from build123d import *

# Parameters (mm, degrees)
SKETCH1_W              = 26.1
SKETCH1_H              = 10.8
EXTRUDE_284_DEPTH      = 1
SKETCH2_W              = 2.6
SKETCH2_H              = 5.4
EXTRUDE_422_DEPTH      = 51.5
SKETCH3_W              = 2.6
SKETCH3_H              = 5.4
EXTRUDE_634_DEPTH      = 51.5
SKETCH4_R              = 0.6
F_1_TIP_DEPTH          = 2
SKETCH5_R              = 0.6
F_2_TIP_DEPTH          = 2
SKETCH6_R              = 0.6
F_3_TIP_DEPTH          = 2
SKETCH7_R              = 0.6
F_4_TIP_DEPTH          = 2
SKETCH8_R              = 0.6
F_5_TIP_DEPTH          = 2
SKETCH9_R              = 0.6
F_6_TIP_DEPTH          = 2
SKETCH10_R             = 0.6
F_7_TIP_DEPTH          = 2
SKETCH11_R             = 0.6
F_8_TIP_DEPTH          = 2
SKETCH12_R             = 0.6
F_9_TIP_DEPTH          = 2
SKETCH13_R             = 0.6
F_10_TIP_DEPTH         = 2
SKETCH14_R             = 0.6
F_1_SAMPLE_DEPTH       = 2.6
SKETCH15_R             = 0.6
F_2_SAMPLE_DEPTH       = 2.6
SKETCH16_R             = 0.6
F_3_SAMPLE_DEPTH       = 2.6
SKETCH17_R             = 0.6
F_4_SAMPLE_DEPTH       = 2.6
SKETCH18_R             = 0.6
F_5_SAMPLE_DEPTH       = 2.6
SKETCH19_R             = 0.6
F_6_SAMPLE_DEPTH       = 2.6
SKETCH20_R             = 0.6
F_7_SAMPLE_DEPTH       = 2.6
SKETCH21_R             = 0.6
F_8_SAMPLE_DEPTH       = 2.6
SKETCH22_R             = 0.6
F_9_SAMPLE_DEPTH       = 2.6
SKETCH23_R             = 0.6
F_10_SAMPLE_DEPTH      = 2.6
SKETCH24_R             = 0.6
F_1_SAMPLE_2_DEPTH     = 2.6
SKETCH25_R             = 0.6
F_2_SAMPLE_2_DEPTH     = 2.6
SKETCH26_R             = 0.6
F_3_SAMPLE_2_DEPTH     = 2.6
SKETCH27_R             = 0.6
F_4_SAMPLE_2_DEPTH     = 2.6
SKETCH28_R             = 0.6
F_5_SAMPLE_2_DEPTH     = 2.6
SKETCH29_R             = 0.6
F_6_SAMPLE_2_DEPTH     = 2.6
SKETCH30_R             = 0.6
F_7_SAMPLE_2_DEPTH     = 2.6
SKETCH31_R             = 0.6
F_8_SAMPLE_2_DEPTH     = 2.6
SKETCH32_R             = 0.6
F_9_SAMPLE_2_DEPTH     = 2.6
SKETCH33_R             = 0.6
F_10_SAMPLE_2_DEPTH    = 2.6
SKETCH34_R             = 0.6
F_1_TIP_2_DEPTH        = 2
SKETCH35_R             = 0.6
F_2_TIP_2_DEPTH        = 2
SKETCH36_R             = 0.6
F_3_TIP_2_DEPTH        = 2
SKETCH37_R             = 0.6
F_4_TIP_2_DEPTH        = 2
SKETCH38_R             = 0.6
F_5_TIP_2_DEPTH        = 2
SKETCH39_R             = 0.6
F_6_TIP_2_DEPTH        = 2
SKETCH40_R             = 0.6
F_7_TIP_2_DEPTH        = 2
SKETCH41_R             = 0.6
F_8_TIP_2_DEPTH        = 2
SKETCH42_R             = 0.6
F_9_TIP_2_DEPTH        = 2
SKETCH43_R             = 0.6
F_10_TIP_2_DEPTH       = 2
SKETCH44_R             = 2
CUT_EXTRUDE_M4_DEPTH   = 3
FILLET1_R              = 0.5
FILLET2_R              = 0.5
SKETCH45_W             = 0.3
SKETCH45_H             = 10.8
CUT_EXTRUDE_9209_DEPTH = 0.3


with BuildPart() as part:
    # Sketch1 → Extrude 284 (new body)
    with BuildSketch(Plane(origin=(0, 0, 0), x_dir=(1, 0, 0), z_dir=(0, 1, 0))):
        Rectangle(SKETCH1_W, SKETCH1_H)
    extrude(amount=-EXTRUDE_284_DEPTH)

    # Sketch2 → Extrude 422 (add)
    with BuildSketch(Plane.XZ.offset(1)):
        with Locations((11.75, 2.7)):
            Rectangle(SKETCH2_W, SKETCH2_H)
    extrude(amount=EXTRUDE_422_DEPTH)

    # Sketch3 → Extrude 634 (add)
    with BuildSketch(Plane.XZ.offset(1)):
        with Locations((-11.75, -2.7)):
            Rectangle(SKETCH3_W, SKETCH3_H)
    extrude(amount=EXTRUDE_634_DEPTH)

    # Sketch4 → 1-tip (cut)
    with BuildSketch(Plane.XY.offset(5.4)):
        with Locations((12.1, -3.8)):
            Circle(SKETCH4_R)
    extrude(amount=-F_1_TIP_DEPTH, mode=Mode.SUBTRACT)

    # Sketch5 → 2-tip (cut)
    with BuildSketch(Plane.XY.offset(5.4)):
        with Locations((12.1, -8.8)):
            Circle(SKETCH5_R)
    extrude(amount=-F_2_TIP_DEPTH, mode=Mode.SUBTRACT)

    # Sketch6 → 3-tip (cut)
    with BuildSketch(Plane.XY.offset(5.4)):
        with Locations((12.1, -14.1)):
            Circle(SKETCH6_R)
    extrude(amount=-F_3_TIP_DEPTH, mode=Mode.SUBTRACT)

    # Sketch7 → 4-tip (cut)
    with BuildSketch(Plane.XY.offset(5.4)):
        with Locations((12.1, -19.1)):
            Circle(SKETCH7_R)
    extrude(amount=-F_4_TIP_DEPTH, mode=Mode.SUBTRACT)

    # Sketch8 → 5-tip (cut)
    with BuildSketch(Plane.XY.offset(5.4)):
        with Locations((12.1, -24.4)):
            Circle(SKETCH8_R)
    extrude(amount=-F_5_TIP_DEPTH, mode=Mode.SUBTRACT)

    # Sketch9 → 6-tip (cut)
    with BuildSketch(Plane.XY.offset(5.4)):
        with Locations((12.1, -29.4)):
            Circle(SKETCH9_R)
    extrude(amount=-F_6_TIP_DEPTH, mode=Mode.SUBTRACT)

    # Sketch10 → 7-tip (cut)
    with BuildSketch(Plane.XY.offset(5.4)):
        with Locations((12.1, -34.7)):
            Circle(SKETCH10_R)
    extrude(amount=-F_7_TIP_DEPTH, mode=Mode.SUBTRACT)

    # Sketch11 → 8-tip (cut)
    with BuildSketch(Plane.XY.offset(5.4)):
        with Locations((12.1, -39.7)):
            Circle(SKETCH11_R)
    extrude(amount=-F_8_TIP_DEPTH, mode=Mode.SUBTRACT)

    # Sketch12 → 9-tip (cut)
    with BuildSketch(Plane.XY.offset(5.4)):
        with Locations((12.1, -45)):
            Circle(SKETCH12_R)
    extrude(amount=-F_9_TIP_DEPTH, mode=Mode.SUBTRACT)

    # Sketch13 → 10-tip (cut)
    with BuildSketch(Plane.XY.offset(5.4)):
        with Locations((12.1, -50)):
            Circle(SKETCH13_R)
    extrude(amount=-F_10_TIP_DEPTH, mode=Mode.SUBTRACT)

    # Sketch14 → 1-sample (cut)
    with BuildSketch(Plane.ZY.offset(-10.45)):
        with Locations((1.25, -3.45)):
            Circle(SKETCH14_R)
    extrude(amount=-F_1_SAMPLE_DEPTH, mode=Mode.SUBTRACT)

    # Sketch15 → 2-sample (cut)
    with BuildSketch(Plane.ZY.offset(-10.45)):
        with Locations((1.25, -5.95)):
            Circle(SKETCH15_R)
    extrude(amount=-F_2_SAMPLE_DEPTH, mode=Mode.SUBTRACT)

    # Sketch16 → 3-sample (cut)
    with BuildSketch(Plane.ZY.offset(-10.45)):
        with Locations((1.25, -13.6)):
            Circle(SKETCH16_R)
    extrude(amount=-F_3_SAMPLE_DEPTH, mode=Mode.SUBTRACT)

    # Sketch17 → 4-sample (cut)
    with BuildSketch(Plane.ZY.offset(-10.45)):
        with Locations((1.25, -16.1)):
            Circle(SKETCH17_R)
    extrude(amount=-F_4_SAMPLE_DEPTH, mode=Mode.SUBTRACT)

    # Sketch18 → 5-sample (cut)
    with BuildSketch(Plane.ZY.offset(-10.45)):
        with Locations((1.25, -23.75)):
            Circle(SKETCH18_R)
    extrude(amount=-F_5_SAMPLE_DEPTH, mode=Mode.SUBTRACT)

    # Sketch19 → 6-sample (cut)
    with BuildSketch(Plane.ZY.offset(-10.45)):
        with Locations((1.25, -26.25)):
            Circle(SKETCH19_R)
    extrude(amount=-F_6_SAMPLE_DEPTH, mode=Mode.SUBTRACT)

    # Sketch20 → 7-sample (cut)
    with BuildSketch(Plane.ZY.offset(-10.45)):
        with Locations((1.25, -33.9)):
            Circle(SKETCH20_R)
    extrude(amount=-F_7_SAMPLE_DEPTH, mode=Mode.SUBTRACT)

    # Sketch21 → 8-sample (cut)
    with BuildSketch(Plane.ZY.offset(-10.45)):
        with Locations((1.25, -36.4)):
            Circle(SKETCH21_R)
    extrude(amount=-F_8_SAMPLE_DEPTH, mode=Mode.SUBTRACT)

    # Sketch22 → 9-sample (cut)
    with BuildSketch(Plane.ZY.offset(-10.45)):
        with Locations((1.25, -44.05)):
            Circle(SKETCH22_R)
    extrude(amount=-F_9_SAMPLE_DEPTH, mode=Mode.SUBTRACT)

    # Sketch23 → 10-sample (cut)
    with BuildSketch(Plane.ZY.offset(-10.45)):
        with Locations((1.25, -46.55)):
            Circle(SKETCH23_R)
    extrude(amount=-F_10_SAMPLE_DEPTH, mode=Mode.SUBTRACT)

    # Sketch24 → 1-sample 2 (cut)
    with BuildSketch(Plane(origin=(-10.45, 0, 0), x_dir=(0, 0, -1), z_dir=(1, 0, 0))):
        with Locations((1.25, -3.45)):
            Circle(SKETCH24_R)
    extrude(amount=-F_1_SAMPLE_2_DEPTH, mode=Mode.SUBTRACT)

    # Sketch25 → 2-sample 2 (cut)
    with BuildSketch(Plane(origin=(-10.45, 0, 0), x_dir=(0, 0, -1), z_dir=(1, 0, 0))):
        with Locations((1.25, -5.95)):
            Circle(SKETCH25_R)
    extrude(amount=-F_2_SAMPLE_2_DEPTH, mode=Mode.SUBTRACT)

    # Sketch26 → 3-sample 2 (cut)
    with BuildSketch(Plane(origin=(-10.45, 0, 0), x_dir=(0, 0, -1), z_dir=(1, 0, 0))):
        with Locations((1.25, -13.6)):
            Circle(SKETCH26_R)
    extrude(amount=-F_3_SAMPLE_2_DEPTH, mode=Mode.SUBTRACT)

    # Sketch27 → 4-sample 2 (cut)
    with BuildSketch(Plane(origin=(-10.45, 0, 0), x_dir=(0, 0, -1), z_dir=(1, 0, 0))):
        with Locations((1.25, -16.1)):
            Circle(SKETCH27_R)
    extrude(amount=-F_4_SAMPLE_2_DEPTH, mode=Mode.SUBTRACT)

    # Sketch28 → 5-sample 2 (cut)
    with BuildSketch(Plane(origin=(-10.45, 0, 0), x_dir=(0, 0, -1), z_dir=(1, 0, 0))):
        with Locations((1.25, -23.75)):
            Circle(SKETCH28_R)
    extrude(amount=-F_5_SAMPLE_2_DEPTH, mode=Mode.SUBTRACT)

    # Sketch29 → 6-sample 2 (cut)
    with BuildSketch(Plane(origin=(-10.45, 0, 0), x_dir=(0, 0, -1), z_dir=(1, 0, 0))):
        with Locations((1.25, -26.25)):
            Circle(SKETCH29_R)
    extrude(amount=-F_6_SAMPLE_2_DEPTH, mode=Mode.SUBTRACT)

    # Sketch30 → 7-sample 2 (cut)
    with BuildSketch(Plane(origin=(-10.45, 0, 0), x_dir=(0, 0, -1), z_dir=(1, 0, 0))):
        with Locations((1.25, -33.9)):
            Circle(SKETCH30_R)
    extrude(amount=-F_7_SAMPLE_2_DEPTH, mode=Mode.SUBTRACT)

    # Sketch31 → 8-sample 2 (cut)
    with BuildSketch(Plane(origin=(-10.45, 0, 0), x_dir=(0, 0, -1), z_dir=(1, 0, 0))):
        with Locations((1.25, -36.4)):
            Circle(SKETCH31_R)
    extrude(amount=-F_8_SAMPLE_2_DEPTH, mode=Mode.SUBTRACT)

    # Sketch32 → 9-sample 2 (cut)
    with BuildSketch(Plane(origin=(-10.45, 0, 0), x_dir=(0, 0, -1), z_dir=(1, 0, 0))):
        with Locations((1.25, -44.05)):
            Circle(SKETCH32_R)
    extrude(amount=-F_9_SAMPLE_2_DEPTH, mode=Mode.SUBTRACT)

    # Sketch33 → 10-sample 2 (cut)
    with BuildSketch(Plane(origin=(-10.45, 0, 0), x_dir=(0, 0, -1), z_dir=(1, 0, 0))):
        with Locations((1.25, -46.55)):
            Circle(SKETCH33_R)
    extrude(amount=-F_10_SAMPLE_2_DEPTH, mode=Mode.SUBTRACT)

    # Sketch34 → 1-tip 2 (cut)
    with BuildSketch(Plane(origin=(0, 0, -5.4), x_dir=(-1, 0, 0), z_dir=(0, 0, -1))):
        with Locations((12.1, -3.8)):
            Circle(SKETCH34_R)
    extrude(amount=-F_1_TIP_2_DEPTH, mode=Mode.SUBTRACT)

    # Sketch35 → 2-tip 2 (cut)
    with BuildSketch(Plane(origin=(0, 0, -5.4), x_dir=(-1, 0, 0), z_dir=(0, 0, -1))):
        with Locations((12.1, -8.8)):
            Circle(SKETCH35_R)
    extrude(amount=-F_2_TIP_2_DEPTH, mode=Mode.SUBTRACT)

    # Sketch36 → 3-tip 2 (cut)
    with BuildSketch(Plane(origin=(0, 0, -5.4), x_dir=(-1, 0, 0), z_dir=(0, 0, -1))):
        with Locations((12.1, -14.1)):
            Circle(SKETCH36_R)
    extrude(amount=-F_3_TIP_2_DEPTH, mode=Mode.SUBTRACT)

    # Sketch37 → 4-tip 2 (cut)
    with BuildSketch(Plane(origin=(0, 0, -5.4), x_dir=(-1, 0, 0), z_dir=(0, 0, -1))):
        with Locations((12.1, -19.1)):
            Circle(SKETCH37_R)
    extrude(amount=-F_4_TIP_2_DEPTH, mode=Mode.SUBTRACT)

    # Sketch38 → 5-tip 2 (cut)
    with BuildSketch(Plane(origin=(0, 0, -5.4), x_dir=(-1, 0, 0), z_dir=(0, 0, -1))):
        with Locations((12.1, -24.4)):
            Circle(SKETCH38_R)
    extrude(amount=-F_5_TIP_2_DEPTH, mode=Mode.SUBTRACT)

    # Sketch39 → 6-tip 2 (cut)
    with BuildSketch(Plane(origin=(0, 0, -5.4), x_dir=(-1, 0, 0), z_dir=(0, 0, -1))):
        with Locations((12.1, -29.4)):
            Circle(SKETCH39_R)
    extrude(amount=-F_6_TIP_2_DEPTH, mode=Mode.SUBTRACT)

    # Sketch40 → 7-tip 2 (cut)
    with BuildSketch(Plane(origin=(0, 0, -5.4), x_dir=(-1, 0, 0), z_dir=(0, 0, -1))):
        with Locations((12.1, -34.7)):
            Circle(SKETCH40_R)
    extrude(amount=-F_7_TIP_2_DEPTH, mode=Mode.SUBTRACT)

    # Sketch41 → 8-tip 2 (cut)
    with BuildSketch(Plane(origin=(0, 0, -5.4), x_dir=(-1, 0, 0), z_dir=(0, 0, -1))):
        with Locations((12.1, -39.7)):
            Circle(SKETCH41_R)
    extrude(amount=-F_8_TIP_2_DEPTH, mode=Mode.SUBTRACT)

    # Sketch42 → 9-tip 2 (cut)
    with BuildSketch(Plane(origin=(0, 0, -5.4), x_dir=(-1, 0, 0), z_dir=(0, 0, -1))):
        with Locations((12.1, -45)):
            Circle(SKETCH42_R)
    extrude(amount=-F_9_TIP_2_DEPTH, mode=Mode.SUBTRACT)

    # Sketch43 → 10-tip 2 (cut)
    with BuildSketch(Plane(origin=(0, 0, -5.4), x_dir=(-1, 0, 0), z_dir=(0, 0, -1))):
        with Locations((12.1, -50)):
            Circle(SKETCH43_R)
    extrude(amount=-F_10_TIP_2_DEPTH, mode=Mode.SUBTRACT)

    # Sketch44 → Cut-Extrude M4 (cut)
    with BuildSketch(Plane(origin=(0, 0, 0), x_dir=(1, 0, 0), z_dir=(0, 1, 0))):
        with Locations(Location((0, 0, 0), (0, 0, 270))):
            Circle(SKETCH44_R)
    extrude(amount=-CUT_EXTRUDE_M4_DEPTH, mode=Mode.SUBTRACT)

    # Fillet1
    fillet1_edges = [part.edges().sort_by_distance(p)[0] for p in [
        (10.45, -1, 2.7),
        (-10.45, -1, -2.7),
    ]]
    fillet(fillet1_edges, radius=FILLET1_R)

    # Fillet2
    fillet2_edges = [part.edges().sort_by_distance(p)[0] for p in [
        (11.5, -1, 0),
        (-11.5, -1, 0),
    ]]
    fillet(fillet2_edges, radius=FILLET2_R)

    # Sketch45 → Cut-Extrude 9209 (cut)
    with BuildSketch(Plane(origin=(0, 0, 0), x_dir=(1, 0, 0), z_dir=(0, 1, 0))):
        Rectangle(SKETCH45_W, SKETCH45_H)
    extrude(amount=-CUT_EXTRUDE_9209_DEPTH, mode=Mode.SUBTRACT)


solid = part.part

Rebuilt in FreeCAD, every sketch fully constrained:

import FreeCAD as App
import Part
import Sketcher
from FreeCAD import Vector
Q = App.Units.Quantity


def edges_at(feature, points):
    """Names of the edges that pass closest to the given points."""
    edges = feature.Shape.Edges
    near = lambda p: min(range(len(edges)), key=lambda i: edges[i].distToShape(Part.Vertex(*p))[0])
    return sorted({f"Edge{near(p) + 1}" for p in points})

doc = App.newDocument("Part")
body = doc.addObject("PartDesign::Body", "Body")

# Sketch on XZ plane
sketch1 = body.newObject("Sketcher::SketchObject", "Sketch")
sketch1.AttachmentSupport = (doc.getObject("XZ_Plane"), [""])
sketch1.MapMode = "FlatFace"
sketch1.addGeometry(Part.LineSegment(Vector(-13.05, -5.4, 0), Vector(-13.05, 5.4, 0)), False)
sketch1.addGeometry(Part.LineSegment(Vector(-13.05, 5.4, 0), Vector(13.05, 5.4, 0)), False)
sketch1.addGeometry(Part.LineSegment(Vector(13.05, 5.4, 0), Vector(13.05, -5.4, 0)), False)
sketch1.addGeometry(Part.LineSegment(Vector(13.05, -5.4, 0), Vector(-13.05, -5.4, 0)), False)
sketch1.addConstraint(Sketcher.Constraint("Coincident", 0, 2, 1, 1))
sketch1.addConstraint(Sketcher.Constraint("Coincident", 1, 2, 2, 1))
sketch1.addConstraint(Sketcher.Constraint("Coincident", 2, 2, 3, 1))
sketch1.addConstraint(Sketcher.Constraint("Coincident", 3, 2, 0, 1))
sketch1.addConstraint(Sketcher.Constraint("Vertical", 0))
sketch1.addConstraint(Sketcher.Constraint("Horizontal", 1))
sketch1.addConstraint(Sketcher.Constraint("Vertical", 2))
sketch1.addConstraint(Sketcher.Constraint("Horizontal", 3))
sketch1.addConstraint(Sketcher.Constraint("Symmetric", 0, 2, 2, 2, -1, 1))
sketch1.addConstraint(Sketcher.Constraint("DistanceX", 1, 1, 1, 2, Q("26.1 mm")))
sketch1.addConstraint(Sketcher.Constraint("DistanceY", 0, 1, 0, 2, Q("10.8 mm")))
pad1 = body.newObject("PartDesign::Pad", "Pad")
pad1.Profile = sketch1
pad1.Length = 1

# Sketch on XZ plane
sketch2 = body.newObject("Sketcher::SketchObject", "Sketch001")
sketch2.AttachmentSupport = (doc.getObject("XZ_Plane"), [""])
sketch2.MapMode = "FlatFace"
sketch2.AttachmentOffset = App.Placement(Vector(0, 0, 1), App.Rotation())
sketch2.addGeometry(Part.LineSegment(Vector(10.45, 5.4, 0), Vector(10.45, 0, 0)), False)
sketch2.addGeometry(Part.LineSegment(Vector(10.45, 0, 0), Vector(13.05, 0, 0)), False)
sketch2.addGeometry(Part.LineSegment(Vector(13.05, 0, 0), Vector(13.05, 5.4, 0)), False)
sketch2.addGeometry(Part.LineSegment(Vector(13.05, 5.4, 0), Vector(10.45, 5.4, 0)), False)
sketch2.addConstraint(Sketcher.Constraint("Coincident", 0, 2, 1, 1))
sketch2.addConstraint(Sketcher.Constraint("Coincident", 1, 2, 2, 1))
sketch2.addConstraint(Sketcher.Constraint("Coincident", 2, 2, 3, 1))
sketch2.addConstraint(Sketcher.Constraint("Coincident", 3, 2, 0, 1))
sketch2.addConstraint(Sketcher.Constraint("Vertical", 0))
sketch2.addConstraint(Sketcher.Constraint("Horizontal", 1))
sketch2.addConstraint(Sketcher.Constraint("Vertical", 2))
sketch2.addConstraint(Sketcher.Constraint("Horizontal", 3))
sketch2.addConstraint(Sketcher.Constraint("PointOnObject", 0, 2, -1))
sketch2.addConstraint(Sketcher.Constraint("DistanceX", 1, 1, 1, 2, Q("2.6 mm")))
sketch2.addConstraint(Sketcher.Constraint("DistanceY", 0, 2, 0, 1, Q("5.4 mm")))
sketch2.addConstraint(Sketcher.Constraint("DistanceX", -1, 1, 0, 2, Q("10.45 mm")))
pad2 = body.newObject("PartDesign::Pad", "Pad001")
pad2.Profile = sketch2
pad2.Length = 51.5

# Sketch on XZ plane
sketch3 = body.newObject("Sketcher::SketchObject", "Sketch002")
sketch3.AttachmentSupport = (doc.getObject("XZ_Plane"), [""])
sketch3.MapMode = "FlatFace"
sketch3.AttachmentOffset = App.Placement(Vector(0, 0, 1), App.Rotation())
sketch3.addGeometry(Part.LineSegment(Vector(-13.05, 0, 0), Vector(-13.05, -5.4, 0)), False)
sketch3.addGeometry(Part.LineSegment(Vector(-13.05, -5.4, 0), Vector(-10.45, -5.4, 0)), False)
sketch3.addGeometry(Part.LineSegment(Vector(-10.45, -5.4, 0), Vector(-10.45, 0, 0)), False)
sketch3.addGeometry(Part.LineSegment(Vector(-10.45, 0, 0), Vector(-13.05, 0, 0)), False)
sketch3.addConstraint(Sketcher.Constraint("Coincident", 0, 2, 1, 1))
sketch3.addConstraint(Sketcher.Constraint("Coincident", 1, 2, 2, 1))
sketch3.addConstraint(Sketcher.Constraint("Coincident", 2, 2, 3, 1))
sketch3.addConstraint(Sketcher.Constraint("Coincident", 3, 2, 0, 1))
sketch3.addConstraint(Sketcher.Constraint("Vertical", 0))
sketch3.addConstraint(Sketcher.Constraint("Horizontal", 1))
sketch3.addConstraint(Sketcher.Constraint("Vertical", 2))
sketch3.addConstraint(Sketcher.Constraint("Horizontal", 3))
sketch3.addConstraint(Sketcher.Constraint("PointOnObject", 2, 2, -1))
sketch3.addConstraint(Sketcher.Constraint("DistanceX", 1, 1, 1, 2, Q("2.6 mm")))
sketch3.addConstraint(Sketcher.Constraint("DistanceY", 0, 2, 0, 1, Q("5.4 mm")))
sketch3.addConstraint(Sketcher.Constraint("DistanceX", 0, 2, -1, 1, Q("13.05 mm")))
pad3 = body.newObject("PartDesign::Pad", "Pad002")
pad3.Profile = sketch3
pad3.Length = 51.5

# Sketch on XY plane
sketch4 = body.newObject("Sketcher::SketchObject", "Sketch003")
sketch4.AttachmentSupport = (doc.getObject("XY_Plane"), [""])
sketch4.MapMode = "FlatFace"
sketch4.AttachmentOffset = App.Placement(Vector(0, 0, 5.4), App.Rotation())
sketch4.addGeometry(Part.Circle(Vector(12.1, -3.8, 0), Vector(0, 0, 1), 0.6), False)
sketch4.addConstraint(Sketcher.Constraint("Diameter", 0, Q("1.2 mm")))
sketch4.addConstraint(Sketcher.Constraint("DistanceX", -1, 1, 0, 3, Q("12.1 mm")))
sketch4.addConstraint(Sketcher.Constraint("DistanceY", 0, 3, -1, 1, Q("3.8 mm")))
pocket1 = body.newObject("PartDesign::Pocket", "Pocket")
pocket1.Profile = sketch4
pocket1.Length = 2

# Sketch on XY plane
sketch5 = body.newObject("Sketcher::SketchObject", "Sketch004")
sketch5.AttachmentSupport = (doc.getObject("XY_Plane"), [""])
sketch5.MapMode = "FlatFace"
sketch5.AttachmentOffset = App.Placement(Vector(0, 0, 5.4), App.Rotation())
sketch5.addGeometry(Part.Circle(Vector(12.1, -8.8, 0), Vector(0, 0, 1), 0.6), False)
sketch5.addConstraint(Sketcher.Constraint("Diameter", 0, Q("1.2 mm")))
sketch5.addConstraint(Sketcher.Constraint("DistanceX", -1, 1, 0, 3, Q("12.1 mm")))
sketch5.addConstraint(Sketcher.Constraint("DistanceY", 0, 3, -1, 1, Q("8.8 mm")))
pocket2 = body.newObject("PartDesign::Pocket", "Pocket001")
pocket2.Profile = sketch5
pocket2.Length = 2

# Sketch on XY plane
sketch6 = body.newObject("Sketcher::SketchObject", "Sketch005")
sketch6.AttachmentSupport = (doc.getObject("XY_Plane"), [""])
sketch6.MapMode = "FlatFace"
sketch6.AttachmentOffset = App.Placement(Vector(0, 0, 5.4), App.Rotation())
sketch6.addGeometry(Part.Circle(Vector(12.1, -14.1, 0), Vector(0, 0, 1), 0.6), False)
sketch6.addConstraint(Sketcher.Constraint("Diameter", 0, Q("1.2 mm")))
sketch6.addConstraint(Sketcher.Constraint("DistanceX", -1, 1, 0, 3, Q("12.1 mm")))
sketch6.addConstraint(Sketcher.Constraint("DistanceY", 0, 3, -1, 1, Q("14.1 mm")))
pocket3 = body.newObject("PartDesign::Pocket", "Pocket002")
pocket3.Profile = sketch6
pocket3.Length = 2

# Sketch on XY plane
sketch7 = body.newObject("Sketcher::SketchObject", "Sketch006")
sketch7.AttachmentSupport = (doc.getObject("XY_Plane"), [""])
sketch7.MapMode = "FlatFace"
sketch7.AttachmentOffset = App.Placement(Vector(0, 0, 5.4), App.Rotation())
sketch7.addGeometry(Part.Circle(Vector(12.1, -19.1, 0), Vector(0, 0, 1), 0.6), False)
sketch7.addConstraint(Sketcher.Constraint("Diameter", 0, Q("1.2 mm")))
sketch7.addConstraint(Sketcher.Constraint("DistanceX", -1, 1, 0, 3, Q("12.1 mm")))
sketch7.addConstraint(Sketcher.Constraint("DistanceY", 0, 3, -1, 1, Q("19.1 mm")))
pocket4 = body.newObject("PartDesign::Pocket", "Pocket003")
pocket4.Profile = sketch7
pocket4.Length = 2

# Sketch on XY plane
sketch8 = body.newObject("Sketcher::SketchObject", "Sketch007")
sketch8.AttachmentSupport = (doc.getObject("XY_Plane"), [""])
sketch8.MapMode = "FlatFace"
sketch8.AttachmentOffset = App.Placement(Vector(0, 0, 5.4), App.Rotation())
sketch8.addGeometry(Part.Circle(Vector(12.1, -24.4, 0), Vector(0, 0, 1), 0.6), False)
sketch8.addConstraint(Sketcher.Constraint("Diameter", 0, Q("1.2 mm")))
sketch8.addConstraint(Sketcher.Constraint("DistanceX", -1, 1, 0, 3, Q("12.1 mm")))
sketch8.addConstraint(Sketcher.Constraint("DistanceY", 0, 3, -1, 1, Q("24.4 mm")))
pocket5 = body.newObject("PartDesign::Pocket", "Pocket004")
pocket5.Profile = sketch8
pocket5.Length = 2

# Sketch on XY plane
sketch9 = body.newObject("Sketcher::SketchObject", "Sketch008")
sketch9.AttachmentSupport = (doc.getObject("XY_Plane"), [""])
sketch9.MapMode = "FlatFace"
sketch9.AttachmentOffset = App.Placement(Vector(0, 0, 5.4), App.Rotation())
sketch9.addGeometry(Part.Circle(Vector(12.1, -29.4, 0), Vector(0, 0, 1), 0.6), False)
sketch9.addConstraint(Sketcher.Constraint("Diameter", 0, Q("1.2 mm")))
sketch9.addConstraint(Sketcher.Constraint("DistanceX", -1, 1, 0, 3, Q("12.1 mm")))
sketch9.addConstraint(Sketcher.Constraint("DistanceY", 0, 3, -1, 1, Q("29.4 mm")))
pocket6 = body.newObject("PartDesign::Pocket", "Pocket005")
pocket6.Profile = sketch9
pocket6.Length = 2

# Sketch on XY plane
sketch10 = body.newObject("Sketcher::SketchObject", "Sketch009")
sketch10.AttachmentSupport = (doc.getObject("XY_Plane"), [""])
sketch10.MapMode = "FlatFace"
sketch10.AttachmentOffset = App.Placement(Vector(0, 0, 5.4), App.Rotation())
sketch10.addGeometry(Part.Circle(Vector(12.1, -34.7, 0), Vector(0, 0, 1), 0.6), False)
sketch10.addConstraint(Sketcher.Constraint("Diameter", 0, Q("1.2 mm")))
sketch10.addConstraint(Sketcher.Constraint("DistanceX", -1, 1, 0, 3, Q("12.1 mm")))
sketch10.addConstraint(Sketcher.Constraint("DistanceY", 0, 3, -1, 1, Q("34.7 mm")))
pocket7 = body.newObject("PartDesign::Pocket", "Pocket006")
pocket7.Profile = sketch10
pocket7.Length = 2

# Sketch on XY plane
sketch11 = body.newObject("Sketcher::SketchObject", "Sketch010")
sketch11.AttachmentSupport = (doc.getObject("XY_Plane"), [""])
sketch11.MapMode = "FlatFace"
sketch11.AttachmentOffset = App.Placement(Vector(0, 0, 5.4), App.Rotation())
sketch11.addGeometry(Part.Circle(Vector(12.1, -39.7, 0), Vector(0, 0, 1), 0.6), False)
sketch11.addConstraint(Sketcher.Constraint("Diameter", 0, Q("1.2 mm")))
sketch11.addConstraint(Sketcher.Constraint("DistanceX", -1, 1, 0, 3, Q("12.1 mm")))
sketch11.addConstraint(Sketcher.Constraint("DistanceY", 0, 3, -1, 1, Q("39.7 mm")))
pocket8 = body.newObject("PartDesign::Pocket", "Pocket007")
pocket8.Profile = sketch11
pocket8.Length = 2

# Sketch on XY plane
sketch12 = body.newObject("Sketcher::SketchObject", "Sketch011")
sketch12.AttachmentSupport = (doc.getObject("XY_Plane"), [""])
sketch12.MapMode = "FlatFace"
sketch12.AttachmentOffset = App.Placement(Vector(0, 0, 5.4), App.Rotation())
sketch12.addGeometry(Part.Circle(Vector(12.1, -45, 0), Vector(0, 0, 1), 0.6), False)
sketch12.addConstraint(Sketcher.Constraint("Diameter", 0, Q("1.2 mm")))
sketch12.addConstraint(Sketcher.Constraint("DistanceY", 0, 3, -1, 1, Q("45 mm")))
sketch12.addConstraint(Sketcher.Constraint("DistanceX", -1, 1, 0, 3, Q("12.1 mm")))
pocket9 = body.newObject("PartDesign::Pocket", "Pocket008")
pocket9.Profile = sketch12
pocket9.Length = 2

# Sketch on XY plane
sketch13 = body.newObject("Sketcher::SketchObject", "Sketch012")
sketch13.AttachmentSupport = (doc.getObject("XY_Plane"), [""])
sketch13.MapMode = "FlatFace"
sketch13.AttachmentOffset = App.Placement(Vector(0, 0, 5.4), App.Rotation())
sketch13.addGeometry(Part.Circle(Vector(12.1, -50, 0), Vector(0, 0, 1), 0.6), False)
sketch13.addConstraint(Sketcher.Constraint("Diameter", 0, Q("1.2 mm")))
sketch13.addConstraint(Sketcher.Constraint("DistanceY", 0, 3, -1, 1, Q("50 mm")))
sketch13.addConstraint(Sketcher.Constraint("DistanceX", -1, 1, 0, 3, Q("12.1 mm")))
pocket10 = body.newObject("PartDesign::Pocket", "Pocket009")
pocket10.Profile = sketch13
pocket10.Length = 2

# Sketch on YZ plane
sketch14 = body.newObject("Sketcher::SketchObject", "Sketch013")
sketch14.AttachmentSupport = (doc.getObject("YZ_Plane"), [""])
sketch14.MapMode = "FlatFace"
sketch14.AttachmentOffset = App.Placement(Vector(0, 0, 10.45), App.Rotation())
sketch14.addGeometry(Part.Circle(Vector(-3.45, 1.25, 0), Vector(0, 0, 1), 0.6), False)
sketch14.addConstraint(Sketcher.Constraint("Diameter", 0, Q("1.2 mm")))
sketch14.addConstraint(Sketcher.Constraint("DistanceX", 0, 3, -1, 1, Q("3.45 mm")))
sketch14.addConstraint(Sketcher.Constraint("DistanceY", -1, 1, 0, 3, Q("1.25 mm")))
pocket11 = body.newObject("PartDesign::Pocket", "Pocket010")
pocket11.Profile = sketch14
pocket11.Length = 2.6
pocket11.Reversed = True

# Sketch on YZ plane
sketch15 = body.newObject("Sketcher::SketchObject", "Sketch014")
sketch15.AttachmentSupport = (doc.getObject("YZ_Plane"), [""])
sketch15.MapMode = "FlatFace"
sketch15.AttachmentOffset = App.Placement(Vector(0, 0, 10.45), App.Rotation())
sketch15.addGeometry(Part.Circle(Vector(-5.95, 1.25, 0), Vector(0, 0, 1), 0.6), False)
sketch15.addConstraint(Sketcher.Constraint("Diameter", 0, Q("1.2 mm")))
sketch15.addConstraint(Sketcher.Constraint("DistanceX", 0, 3, -1, 1, Q("5.95 mm")))
sketch15.addConstraint(Sketcher.Constraint("DistanceY", -1, 1, 0, 3, Q("1.25 mm")))
pocket12 = body.newObject("PartDesign::Pocket", "Pocket011")
pocket12.Profile = sketch15
pocket12.Length = 2.6
pocket12.Reversed = True

# Sketch on YZ plane
sketch16 = body.newObject("Sketcher::SketchObject", "Sketch015")
sketch16.AttachmentSupport = (doc.getObject("YZ_Plane"), [""])
sketch16.MapMode = "FlatFace"
sketch16.AttachmentOffset = App.Placement(Vector(0, 0, 10.45), App.Rotation())
sketch16.addGeometry(Part.Circle(Vector(-13.6, 1.25, 0), Vector(0, 0, 1), 0.6), False)
sketch16.addConstraint(Sketcher.Constraint("Diameter", 0, Q("1.2 mm")))
sketch16.addConstraint(Sketcher.Constraint("DistanceX", 0, 3, -1, 1, Q("13.6 mm")))
sketch16.addConstraint(Sketcher.Constraint("DistanceY", -1, 1, 0, 3, Q("1.25 mm")))
pocket13 = body.newObject("PartDesign::Pocket", "Pocket012")
pocket13.Profile = sketch16
pocket13.Length = 2.6
pocket13.Reversed = True

# Sketch on YZ plane
sketch17 = body.newObject("Sketcher::SketchObject", "Sketch016")
sketch17.AttachmentSupport = (doc.getObject("YZ_Plane"), [""])
sketch17.MapMode = "FlatFace"
sketch17.AttachmentOffset = App.Placement(Vector(0, 0, 10.45), App.Rotation())
sketch17.addGeometry(Part.Circle(Vector(-16.1, 1.25, 0), Vector(0, 0, 1), 0.6), False)
sketch17.addConstraint(Sketcher.Constraint("Diameter", 0, Q("1.2 mm")))
sketch17.addConstraint(Sketcher.Constraint("DistanceX", 0, 3, -1, 1, Q("16.1 mm")))
sketch17.addConstraint(Sketcher.Constraint("DistanceY", -1, 1, 0, 3, Q("1.25 mm")))
pocket14 = body.newObject("PartDesign::Pocket", "Pocket013")
pocket14.Profile = sketch17
pocket14.Length = 2.6
pocket14.Reversed = True

# Sketch on YZ plane
sketch18 = body.newObject("Sketcher::SketchObject", "Sketch017")
sketch18.AttachmentSupport = (doc.getObject("YZ_Plane"), [""])
sketch18.MapMode = "FlatFace"
sketch18.AttachmentOffset = App.Placement(Vector(0, 0, 10.45), App.Rotation())
sketch18.addGeometry(Part.Circle(Vector(-23.75, 1.25, 0), Vector(0, 0, 1), 0.6), False)
sketch18.addConstraint(Sketcher.Constraint("Diameter", 0, Q("1.2 mm")))
sketch18.addConstraint(Sketcher.Constraint("DistanceX", 0, 3, -1, 1, Q("23.75 mm")))
sketch18.addConstraint(Sketcher.Constraint("DistanceY", -1, 1, 0, 3, Q("1.25 mm")))
pocket15 = body.newObject("PartDesign::Pocket", "Pocket014")
pocket15.Profile = sketch18
pocket15.Length = 2.6
pocket15.Reversed = True

# Sketch on YZ plane
sketch19 = body.newObject("Sketcher::SketchObject", "Sketch018")
sketch19.AttachmentSupport = (doc.getObject("YZ_Plane"), [""])
sketch19.MapMode = "FlatFace"
sketch19.AttachmentOffset = App.Placement(Vector(0, 0, 10.45), App.Rotation())
sketch19.addGeometry(Part.Circle(Vector(-26.25, 1.25, 0), Vector(0, 0, 1), 0.6), False)
sketch19.addConstraint(Sketcher.Constraint("Diameter", 0, Q("1.2 mm")))
sketch19.addConstraint(Sketcher.Constraint("DistanceX", 0, 3, -1, 1, Q("26.25 mm")))
sketch19.addConstraint(Sketcher.Constraint("DistanceY", -1, 1, 0, 3, Q("1.25 mm")))
pocket16 = body.newObject("PartDesign::Pocket", "Pocket015")
pocket16.Profile = sketch19
pocket16.Length = 2.6
pocket16.Reversed = True

# Sketch on YZ plane
sketch20 = body.newObject("Sketcher::SketchObject", "Sketch019")
sketch20.AttachmentSupport = (doc.getObject("YZ_Plane"), [""])
sketch20.MapMode = "FlatFace"
sketch20.AttachmentOffset = App.Placement(Vector(0, 0, 10.45), App.Rotation())
sketch20.addGeometry(Part.Circle(Vector(-33.9, 1.25, 0), Vector(0, 0, 1), 0.6), False)
sketch20.addConstraint(Sketcher.Constraint("Diameter", 0, Q("1.2 mm")))
sketch20.addConstraint(Sketcher.Constraint("DistanceX", 0, 3, -1, 1, Q("33.9 mm")))
sketch20.addConstraint(Sketcher.Constraint("DistanceY", -1, 1, 0, 3, Q("1.25 mm")))
pocket17 = body.newObject("PartDesign::Pocket", "Pocket016")
pocket17.Profile = sketch20
pocket17.Length = 2.6
pocket17.Reversed = True

# Sketch on YZ plane
sketch21 = body.newObject("Sketcher::SketchObject", "Sketch020")
sketch21.AttachmentSupport = (doc.getObject("YZ_Plane"), [""])
sketch21.MapMode = "FlatFace"
sketch21.AttachmentOffset = App.Placement(Vector(0, 0, 10.45), App.Rotation())
sketch21.addGeometry(Part.Circle(Vector(-36.4, 1.25, 0), Vector(0, 0, 1), 0.6), False)
sketch21.addConstraint(Sketcher.Constraint("Diameter", 0, Q("1.2 mm")))
sketch21.addConstraint(Sketcher.Constraint("DistanceX", 0, 3, -1, 1, Q("36.4 mm")))
sketch21.addConstraint(Sketcher.Constraint("DistanceY", -1, 1, 0, 3, Q("1.25 mm")))
pocket18 = body.newObject("PartDesign::Pocket", "Pocket017")
pocket18.Profile = sketch21
pocket18.Length = 2.6
pocket18.Reversed = True

# Sketch on YZ plane
sketch22 = body.newObject("Sketcher::SketchObject", "Sketch021")
sketch22.AttachmentSupport = (doc.getObject("YZ_Plane"), [""])
sketch22.MapMode = "FlatFace"
sketch22.AttachmentOffset = App.Placement(Vector(0, 0, 10.45), App.Rotation())
sketch22.addGeometry(Part.Circle(Vector(-44.05, 1.25, 0), Vector(0, 0, 1), 0.6), False)
sketch22.addConstraint(Sketcher.Constraint("Diameter", 0, Q("1.2 mm")))
sketch22.addConstraint(Sketcher.Constraint("DistanceX", 0, 3, -1, 1, Q("44.05 mm")))
sketch22.addConstraint(Sketcher.Constraint("DistanceY", -1, 1, 0, 3, Q("1.25 mm")))
pocket19 = body.newObject("PartDesign::Pocket", "Pocket018")
pocket19.Profile = sketch22
pocket19.Length = 2.6
pocket19.Reversed = True

# Sketch on YZ plane
sketch23 = body.newObject("Sketcher::SketchObject", "Sketch022")
sketch23.AttachmentSupport = (doc.getObject("YZ_Plane"), [""])
sketch23.MapMode = "FlatFace"
sketch23.AttachmentOffset = App.Placement(Vector(0, 0, 10.45), App.Rotation())
sketch23.addGeometry(Part.Circle(Vector(-46.55, 1.25, 0), Vector(0, 0, 1), 0.6), False)
sketch23.addConstraint(Sketcher.Constraint("Diameter", 0, Q("1.2 mm")))
sketch23.addConstraint(Sketcher.Constraint("DistanceX", 0, 3, -1, 1, Q("46.55 mm")))
sketch23.addConstraint(Sketcher.Constraint("DistanceY", -1, 1, 0, 3, Q("1.25 mm")))
pocket20 = body.newObject("PartDesign::Pocket", "Pocket019")
pocket20.Profile = sketch23
pocket20.Length = 2.6
pocket20.Reversed = True

# Sketch on YZ plane
sketch24 = body.newObject("Sketcher::SketchObject", "Sketch023")
sketch24.AttachmentSupport = (doc.getObject("YZ_Plane"), [""])
sketch24.MapMode = "FlatFace"
sketch24.AttachmentOffset = App.Placement(Vector(0, 0, -10.45), App.Rotation())
sketch24.addGeometry(Part.Circle(Vector(-3.45, -1.25, 0), Vector(0, 0, 1), 0.6), False)
sketch24.addConstraint(Sketcher.Constraint("Diameter", 0, Q("1.2 mm")))
sketch24.addConstraint(Sketcher.Constraint("DistanceX", 0, 3, -1, 1, Q("3.45 mm")))
sketch24.addConstraint(Sketcher.Constraint("DistanceY", 0, 3, -1, 1, Q("1.25 mm")))
pocket21 = body.newObject("PartDesign::Pocket", "Pocket020")
pocket21.Profile = sketch24
pocket21.Length = 2.6

# Sketch on YZ plane
sketch25 = body.newObject("Sketcher::SketchObject", "Sketch024")
sketch25.AttachmentSupport = (doc.getObject("YZ_Plane"), [""])
sketch25.MapMode = "FlatFace"
sketch25.AttachmentOffset = App.Placement(Vector(0, 0, -10.45), App.Rotation())
sketch25.addGeometry(Part.Circle(Vector(-5.95, -1.25, 0), Vector(0, 0, 1), 0.6), False)
sketch25.addConstraint(Sketcher.Constraint("Diameter", 0, Q("1.2 mm")))
sketch25.addConstraint(Sketcher.Constraint("DistanceX", 0, 3, -1, 1, Q("5.95 mm")))
sketch25.addConstraint(Sketcher.Constraint("DistanceY", 0, 3, -1, 1, Q("1.25 mm")))
pocket22 = body.newObject("PartDesign::Pocket", "Pocket021")
pocket22.Profile = sketch25
pocket22.Length = 2.6

# Sketch on YZ plane
sketch26 = body.newObject("Sketcher::SketchObject", "Sketch025")
sketch26.AttachmentSupport = (doc.getObject("YZ_Plane"), [""])
sketch26.MapMode = "FlatFace"
sketch26.AttachmentOffset = App.Placement(Vector(0, 0, -10.45), App.Rotation())
sketch26.addGeometry(Part.Circle(Vector(-13.6, -1.25, 0), Vector(0, 0, 1), 0.6), False)
sketch26.addConstraint(Sketcher.Constraint("Diameter", 0, Q("1.2 mm")))
sketch26.addConstraint(Sketcher.Constraint("DistanceX", 0, 3, -1, 1, Q("13.6 mm")))
sketch26.addConstraint(Sketcher.Constraint("DistanceY", 0, 3, -1, 1, Q("1.25 mm")))
pocket23 = body.newObject("PartDesign::Pocket", "Pocket022")
pocket23.Profile = sketch26
pocket23.Length = 2.6

# Sketch on YZ plane
sketch27 = body.newObject("Sketcher::SketchObject", "Sketch026")
sketch27.AttachmentSupport = (doc.getObject("YZ_Plane"), [""])
sketch27.MapMode = "FlatFace"
sketch27.AttachmentOffset = App.Placement(Vector(0, 0, -10.45), App.Rotation())
sketch27.addGeometry(Part.Circle(Vector(-16.1, -1.25, 0), Vector(0, 0, 1), 0.6), False)
sketch27.addConstraint(Sketcher.Constraint("Diameter", 0, Q("1.2 mm")))
sketch27.addConstraint(Sketcher.Constraint("DistanceX", 0, 3, -1, 1, Q("16.1 mm")))
sketch27.addConstraint(Sketcher.Constraint("DistanceY", 0, 3, -1, 1, Q("1.25 mm")))
pocket24 = body.newObject("PartDesign::Pocket", "Pocket023")
pocket24.Profile = sketch27
pocket24.Length = 2.6

# Sketch on YZ plane
sketch28 = body.newObject("Sketcher::SketchObject", "Sketch027")
sketch28.AttachmentSupport = (doc.getObject("YZ_Plane"), [""])
sketch28.MapMode = "FlatFace"
sketch28.AttachmentOffset = App.Placement(Vector(0, 0, -10.45), App.Rotation())
sketch28.addGeometry(Part.Circle(Vector(-23.75, -1.25, 0), Vector(0, 0, 1), 0.6), False)
sketch28.addConstraint(Sketcher.Constraint("Diameter", 0, Q("1.2 mm")))
sketch28.addConstraint(Sketcher.Constraint("DistanceX", 0, 3, -1, 1, Q("23.75 mm")))
sketch28.addConstraint(Sketcher.Constraint("DistanceY", 0, 3, -1, 1, Q("1.25 mm")))
pocket25 = body.newObject("PartDesign::Pocket", "Pocket024")
pocket25.Profile = sketch28
pocket25.Length = 2.6

# Sketch on YZ plane
sketch29 = body.newObject("Sketcher::SketchObject", "Sketch028")
sketch29.AttachmentSupport = (doc.getObject("YZ_Plane"), [""])
sketch29.MapMode = "FlatFace"
sketch29.AttachmentOffset = App.Placement(Vector(0, 0, -10.45), App.Rotation())
sketch29.addGeometry(Part.Circle(Vector(-26.25, -1.25, 0), Vector(0, 0, 1), 0.6), False)
sketch29.addConstraint(Sketcher.Constraint("Diameter", 0, Q("1.2 mm")))
sketch29.addConstraint(Sketcher.Constraint("DistanceX", 0, 3, -1, 1, Q("26.25 mm")))
sketch29.addConstraint(Sketcher.Constraint("DistanceY", 0, 3, -1, 1, Q("1.25 mm")))
pocket26 = body.newObject("PartDesign::Pocket", "Pocket025")
pocket26.Profile = sketch29
pocket26.Length = 2.6

# Sketch on YZ plane
sketch30 = body.newObject("Sketcher::SketchObject", "Sketch029")
sketch30.AttachmentSupport = (doc.getObject("YZ_Plane"), [""])
sketch30.MapMode = "FlatFace"
sketch30.AttachmentOffset = App.Placement(Vector(0, 0, -10.45), App.Rotation())
sketch30.addGeometry(Part.Circle(Vector(-33.9, -1.25, 0), Vector(0, 0, 1), 0.6), False)
sketch30.addConstraint(Sketcher.Constraint("Diameter", 0, Q("1.2 mm")))
sketch30.addConstraint(Sketcher.Constraint("DistanceX", 0, 3, -1, 1, Q("33.9 mm")))
sketch30.addConstraint(Sketcher.Constraint("DistanceY", 0, 3, -1, 1, Q("1.25 mm")))
pocket27 = body.newObject("PartDesign::Pocket", "Pocket026")
pocket27.Profile = sketch30
pocket27.Length = 2.6

# Sketch on YZ plane
sketch31 = body.newObject("Sketcher::SketchObject", "Sketch030")
sketch31.AttachmentSupport = (doc.getObject("YZ_Plane"), [""])
sketch31.MapMode = "FlatFace"
sketch31.AttachmentOffset = App.Placement(Vector(0, 0, -10.45), App.Rotation())
sketch31.addGeometry(Part.Circle(Vector(-36.4, -1.25, 0), Vector(0, 0, 1), 0.6), False)
sketch31.addConstraint(Sketcher.Constraint("Diameter", 0, Q("1.2 mm")))
sketch31.addConstraint(Sketcher.Constraint("DistanceX", 0, 3, -1, 1, Q("36.4 mm")))
sketch31.addConstraint(Sketcher.Constraint("DistanceY", 0, 3, -1, 1, Q("1.25 mm")))
pocket28 = body.newObject("PartDesign::Pocket", "Pocket027")
pocket28.Profile = sketch31
pocket28.Length = 2.6

# Sketch on YZ plane
sketch32 = body.newObject("Sketcher::SketchObject", "Sketch031")
sketch32.AttachmentSupport = (doc.getObject("YZ_Plane"), [""])
sketch32.MapMode = "FlatFace"
sketch32.AttachmentOffset = App.Placement(Vector(0, 0, -10.45), App.Rotation())
sketch32.addGeometry(Part.Circle(Vector(-44.05, -1.25, 0), Vector(0, 0, 1), 0.6), False)
sketch32.addConstraint(Sketcher.Constraint("Diameter", 0, Q("1.2 mm")))
sketch32.addConstraint(Sketcher.Constraint("DistanceX", 0, 3, -1, 1, Q("44.05 mm")))
sketch32.addConstraint(Sketcher.Constraint("DistanceY", 0, 3, -1, 1, Q("1.25 mm")))
pocket29 = body.newObject("PartDesign::Pocket", "Pocket028")
pocket29.Profile = sketch32
pocket29.Length = 2.6

# Sketch on YZ plane
sketch33 = body.newObject("Sketcher::SketchObject", "Sketch032")
sketch33.AttachmentSupport = (doc.getObject("YZ_Plane"), [""])
sketch33.MapMode = "FlatFace"
sketch33.AttachmentOffset = App.Placement(Vector(0, 0, -10.45), App.Rotation())
sketch33.addGeometry(Part.Circle(Vector(-46.55, -1.25, 0), Vector(0, 0, 1), 0.6), False)
sketch33.addConstraint(Sketcher.Constraint("Diameter", 0, Q("1.2 mm")))
sketch33.addConstraint(Sketcher.Constraint("DistanceX", 0, 3, -1, 1, Q("46.55 mm")))
sketch33.addConstraint(Sketcher.Constraint("DistanceY", 0, 3, -1, 1, Q("1.25 mm")))
pocket30 = body.newObject("PartDesign::Pocket", "Pocket029")
pocket30.Profile = sketch33
pocket30.Length = 2.6

# Sketch on XY plane
sketch34 = body.newObject("Sketcher::SketchObject", "Sketch033")
sketch34.AttachmentSupport = (doc.getObject("XY_Plane"), [""])
sketch34.MapMode = "FlatFace"
sketch34.AttachmentOffset = App.Placement(Vector(0, 0, -5.4), App.Rotation())
sketch34.addGeometry(Part.Circle(Vector(-12.1, -3.8, 0), Vector(0, 0, 1), 0.6), False)
sketch34.addConstraint(Sketcher.Constraint("Diameter", 0, Q("1.2 mm")))
sketch34.addConstraint(Sketcher.Constraint("DistanceX", 0, 3, -1, 1, Q("12.1 mm")))
sketch34.addConstraint(Sketcher.Constraint("DistanceY", 0, 3, -1, 1, Q("3.8 mm")))
pocket31 = body.newObject("PartDesign::Pocket", "Pocket030")
pocket31.Profile = sketch34
pocket31.Length = 2
pocket31.Reversed = True

# Sketch on XY plane
sketch35 = body.newObject("Sketcher::SketchObject", "Sketch034")
sketch35.AttachmentSupport = (doc.getObject("XY_Plane"), [""])
sketch35.MapMode = "FlatFace"
sketch35.AttachmentOffset = App.Placement(Vector(0, 0, -5.4), App.Rotation())
sketch35.addGeometry(Part.Circle(Vector(-12.1, -8.8, 0), Vector(0, 0, 1), 0.6), False)
sketch35.addConstraint(Sketcher.Constraint("Diameter", 0, Q("1.2 mm")))
sketch35.addConstraint(Sketcher.Constraint("DistanceX", 0, 3, -1, 1, Q("12.1 mm")))
sketch35.addConstraint(Sketcher.Constraint("DistanceY", 0, 3, -1, 1, Q("8.8 mm")))
pocket32 = body.newObject("PartDesign::Pocket", "Pocket031")
pocket32.Profile = sketch35
pocket32.Length = 2
pocket32.Reversed = True

# Sketch on XY plane
sketch36 = body.newObject("Sketcher::SketchObject", "Sketch035")
sketch36.AttachmentSupport = (doc.getObject("XY_Plane"), [""])
sketch36.MapMode = "FlatFace"
sketch36.AttachmentOffset = App.Placement(Vector(0, 0, -5.4), App.Rotation())
sketch36.addGeometry(Part.Circle(Vector(-12.1, -14.1, 0), Vector(0, 0, 1), 0.6), False)
sketch36.addConstraint(Sketcher.Constraint("Diameter", 0, Q("1.2 mm")))
sketch36.addConstraint(Sketcher.Constraint("DistanceX", 0, 3, -1, 1, Q("12.1 mm")))
sketch36.addConstraint(Sketcher.Constraint("DistanceY", 0, 3, -1, 1, Q("14.1 mm")))
pocket33 = body.newObject("PartDesign::Pocket", "Pocket032")
pocket33.Profile = sketch36
pocket33.Length = 2
pocket33.Reversed = True

# Sketch on XY plane
sketch37 = body.newObject("Sketcher::SketchObject", "Sketch036")
sketch37.AttachmentSupport = (doc.getObject("XY_Plane"), [""])
sketch37.MapMode = "FlatFace"
sketch37.AttachmentOffset = App.Placement(Vector(0, 0, -5.4), App.Rotation())
sketch37.addGeometry(Part.Circle(Vector(-12.1, -19.1, 0), Vector(0, 0, 1), 0.6), False)
sketch37.addConstraint(Sketcher.Constraint("Diameter", 0, Q("1.2 mm")))
sketch37.addConstraint(Sketcher.Constraint("DistanceX", 0, 3, -1, 1, Q("12.1 mm")))
sketch37.addConstraint(Sketcher.Constraint("DistanceY", 0, 3, -1, 1, Q("19.1 mm")))
pocket34 = body.newObject("PartDesign::Pocket", "Pocket033")
pocket34.Profile = sketch37
pocket34.Length = 2
pocket34.Reversed = True

# Sketch on XY plane
sketch38 = body.newObject("Sketcher::SketchObject", "Sketch037")
sketch38.AttachmentSupport = (doc.getObject("XY_Plane"), [""])
sketch38.MapMode = "FlatFace"
sketch38.AttachmentOffset = App.Placement(Vector(0, 0, -5.4), App.Rotation())
sketch38.addGeometry(Part.Circle(Vector(-12.1, -24.4, 0), Vector(0, 0, 1), 0.6), False)
sketch38.addConstraint(Sketcher.Constraint("Diameter", 0, Q("1.2 mm")))
sketch38.addConstraint(Sketcher.Constraint("DistanceX", 0, 3, -1, 1, Q("12.1 mm")))
sketch38.addConstraint(Sketcher.Constraint("DistanceY", 0, 3, -1, 1, Q("24.4 mm")))
pocket35 = body.newObject("PartDesign::Pocket", "Pocket034")
pocket35.Profile = sketch38
pocket35.Length = 2
pocket35.Reversed = True

# Sketch on XY plane
sketch39 = body.newObject("Sketcher::SketchObject", "Sketch038")
sketch39.AttachmentSupport = (doc.getObject("XY_Plane"), [""])
sketch39.MapMode = "FlatFace"
sketch39.AttachmentOffset = App.Placement(Vector(0, 0, -5.4), App.Rotation())
sketch39.addGeometry(Part.Circle(Vector(-12.1, -29.4, 0), Vector(0, 0, 1), 0.6), False)
sketch39.addConstraint(Sketcher.Constraint("Diameter", 0, Q("1.2 mm")))
sketch39.addConstraint(Sketcher.Constraint("DistanceX", 0, 3, -1, 1, Q("12.1 mm")))
sketch39.addConstraint(Sketcher.Constraint("DistanceY", 0, 3, -1, 1, Q("29.4 mm")))
pocket36 = body.newObject("PartDesign::Pocket", "Pocket035")
pocket36.Profile = sketch39
pocket36.Length = 2
pocket36.Reversed = True

# Sketch on XY plane
sketch40 = body.newObject("Sketcher::SketchObject", "Sketch039")
sketch40.AttachmentSupport = (doc.getObject("XY_Plane"), [""])
sketch40.MapMode = "FlatFace"
sketch40.AttachmentOffset = App.Placement(Vector(0, 0, -5.4), App.Rotation())
sketch40.addGeometry(Part.Circle(Vector(-12.1, -34.7, 0), Vector(0, 0, 1), 0.6), False)
sketch40.addConstraint(Sketcher.Constraint("Diameter", 0, Q("1.2 mm")))
sketch40.addConstraint(Sketcher.Constraint("DistanceX", 0, 3, -1, 1, Q("12.1 mm")))
sketch40.addConstraint(Sketcher.Constraint("DistanceY", 0, 3, -1, 1, Q("34.7 mm")))
pocket37 = body.newObject("PartDesign::Pocket", "Pocket036")
pocket37.Profile = sketch40
pocket37.Length = 2
pocket37.Reversed = True

# Sketch on XY plane
sketch41 = body.newObject("Sketcher::SketchObject", "Sketch040")
sketch41.AttachmentSupport = (doc.getObject("XY_Plane"), [""])
sketch41.MapMode = "FlatFace"
sketch41.AttachmentOffset = App.Placement(Vector(0, 0, -5.4), App.Rotation())
sketch41.addGeometry(Part.Circle(Vector(-12.1, -39.7, 0), Vector(0, 0, 1), 0.6), False)
sketch41.addConstraint(Sketcher.Constraint("Diameter", 0, Q("1.2 mm")))
sketch41.addConstraint(Sketcher.Constraint("DistanceX", 0, 3, -1, 1, Q("12.1 mm")))
sketch41.addConstraint(Sketcher.Constraint("DistanceY", 0, 3, -1, 1, Q("39.7 mm")))
pocket38 = body.newObject("PartDesign::Pocket", "Pocket037")
pocket38.Profile = sketch41
pocket38.Length = 2
pocket38.Reversed = True

# Sketch on XY plane
sketch42 = body.newObject("Sketcher::SketchObject", "Sketch041")
sketch42.AttachmentSupport = (doc.getObject("XY_Plane"), [""])
sketch42.MapMode = "FlatFace"
sketch42.AttachmentOffset = App.Placement(Vector(0, 0, -5.4), App.Rotation())
sketch42.addGeometry(Part.Circle(Vector(-12.1, -45, 0), Vector(0, 0, 1), 0.6), False)
sketch42.addConstraint(Sketcher.Constraint("Diameter", 0, Q("1.2 mm")))
sketch42.addConstraint(Sketcher.Constraint("DistanceY", 0, 3, -1, 1, Q("45 mm")))
sketch42.addConstraint(Sketcher.Constraint("DistanceX", 0, 3, -1, 1, Q("12.1 mm")))
pocket39 = body.newObject("PartDesign::Pocket", "Pocket038")
pocket39.Profile = sketch42
pocket39.Length = 2
pocket39.Reversed = True

# Sketch on XY plane
sketch43 = body.newObject("Sketcher::SketchObject", "Sketch042")
sketch43.AttachmentSupport = (doc.getObject("XY_Plane"), [""])
sketch43.MapMode = "FlatFace"
sketch43.AttachmentOffset = App.Placement(Vector(0, 0, -5.4), App.Rotation())
sketch43.addGeometry(Part.Circle(Vector(-12.1, -50, 0), Vector(0, 0, 1), 0.6), False)
sketch43.addConstraint(Sketcher.Constraint("Diameter", 0, Q("1.2 mm")))
sketch43.addConstraint(Sketcher.Constraint("DistanceY", 0, 3, -1, 1, Q("50 mm")))
sketch43.addConstraint(Sketcher.Constraint("DistanceX", 0, 3, -1, 1, Q("12.1 mm")))
pocket40 = body.newObject("PartDesign::Pocket", "Pocket039")
pocket40.Profile = sketch43
pocket40.Length = 2
pocket40.Reversed = True

# Sketch on XZ plane
sketch44 = body.newObject("Sketcher::SketchObject", "Sketch043")
sketch44.AttachmentSupport = (doc.getObject("XZ_Plane"), [""])
sketch44.MapMode = "FlatFace"
sketch44.addGeometry(Part.Circle(Vector(0, 0, 0), Vector(0, 0, 1), 2), False)
sketch44.addConstraint(Sketcher.Constraint("Coincident", 0, 3, -1, 1))
sketch44.addConstraint(Sketcher.Constraint("Diameter", 0, Q("4 mm")))
pocket41 = body.newObject("PartDesign::Pocket", "Pocket040")
pocket41.Profile = sketch44
pocket41.Length = 3
pocket41.Reversed = True
doc.recompute()

fillet = body.newObject("PartDesign::Fillet", "Fillet")
fillet.Base = (pocket41, edges_at(pocket41, [(10.45, -1, 2.7), (-10.45, -1, -2.7)]))
fillet.Radius = 0.5
doc.recompute()

fillet2 = body.newObject("PartDesign::Fillet", "Fillet001")
fillet2.Base = (fillet, edges_at(fillet, [(11.5, -1, 0), (-11.5, -1, 0)]))
fillet2.Radius = 0.5

# Sketch on XZ plane
sketch45 = body.newObject("Sketcher::SketchObject", "Sketch044")
sketch45.AttachmentSupport = (doc.getObject("XZ_Plane"), [""])
sketch45.MapMode = "FlatFace"
sketch45.addGeometry(Part.LineSegment(Vector(-0.15, -5.4, 0), Vector(-0.15, 5.4, 0)), False)
sketch45.addGeometry(Part.LineSegment(Vector(-0.15, 5.4, 0), Vector(0.15, 5.4, 0)), False)
sketch45.addGeometry(Part.LineSegment(Vector(0.15, 5.4, 0), Vector(0.15, -5.4, 0)), False)
sketch45.addGeometry(Part.LineSegment(Vector(0.15, -5.4, 0), Vector(-0.15, -5.4, 0)), False)
sketch45.addConstraint(Sketcher.Constraint("Coincident", 0, 2, 1, 1))
sketch45.addConstraint(Sketcher.Constraint("Coincident", 1, 2, 2, 1))
sketch45.addConstraint(Sketcher.Constraint("Coincident", 2, 2, 3, 1))
sketch45.addConstraint(Sketcher.Constraint("Coincident", 3, 2, 0, 1))
sketch45.addConstraint(Sketcher.Constraint("Vertical", 0))
sketch45.addConstraint(Sketcher.Constraint("Horizontal", 1))
sketch45.addConstraint(Sketcher.Constraint("Vertical", 2))
sketch45.addConstraint(Sketcher.Constraint("Horizontal", 3))
sketch45.addConstraint(Sketcher.Constraint("Symmetric", 0, 2, 2, 2, -1, 1))
sketch45.addConstraint(Sketcher.Constraint("DistanceX", 1, 1, 1, 2, Q("0.3 mm")))
sketch45.addConstraint(Sketcher.Constraint("DistanceY", 0, 1, 0, 2, Q("10.8 mm")))
pocket42 = body.newObject("PartDesign::Pocket", "Pocket041")
pocket42.Profile = sketch45
pocket42.Length = 0.3
pocket42.Reversed = True

doc.recompute()
